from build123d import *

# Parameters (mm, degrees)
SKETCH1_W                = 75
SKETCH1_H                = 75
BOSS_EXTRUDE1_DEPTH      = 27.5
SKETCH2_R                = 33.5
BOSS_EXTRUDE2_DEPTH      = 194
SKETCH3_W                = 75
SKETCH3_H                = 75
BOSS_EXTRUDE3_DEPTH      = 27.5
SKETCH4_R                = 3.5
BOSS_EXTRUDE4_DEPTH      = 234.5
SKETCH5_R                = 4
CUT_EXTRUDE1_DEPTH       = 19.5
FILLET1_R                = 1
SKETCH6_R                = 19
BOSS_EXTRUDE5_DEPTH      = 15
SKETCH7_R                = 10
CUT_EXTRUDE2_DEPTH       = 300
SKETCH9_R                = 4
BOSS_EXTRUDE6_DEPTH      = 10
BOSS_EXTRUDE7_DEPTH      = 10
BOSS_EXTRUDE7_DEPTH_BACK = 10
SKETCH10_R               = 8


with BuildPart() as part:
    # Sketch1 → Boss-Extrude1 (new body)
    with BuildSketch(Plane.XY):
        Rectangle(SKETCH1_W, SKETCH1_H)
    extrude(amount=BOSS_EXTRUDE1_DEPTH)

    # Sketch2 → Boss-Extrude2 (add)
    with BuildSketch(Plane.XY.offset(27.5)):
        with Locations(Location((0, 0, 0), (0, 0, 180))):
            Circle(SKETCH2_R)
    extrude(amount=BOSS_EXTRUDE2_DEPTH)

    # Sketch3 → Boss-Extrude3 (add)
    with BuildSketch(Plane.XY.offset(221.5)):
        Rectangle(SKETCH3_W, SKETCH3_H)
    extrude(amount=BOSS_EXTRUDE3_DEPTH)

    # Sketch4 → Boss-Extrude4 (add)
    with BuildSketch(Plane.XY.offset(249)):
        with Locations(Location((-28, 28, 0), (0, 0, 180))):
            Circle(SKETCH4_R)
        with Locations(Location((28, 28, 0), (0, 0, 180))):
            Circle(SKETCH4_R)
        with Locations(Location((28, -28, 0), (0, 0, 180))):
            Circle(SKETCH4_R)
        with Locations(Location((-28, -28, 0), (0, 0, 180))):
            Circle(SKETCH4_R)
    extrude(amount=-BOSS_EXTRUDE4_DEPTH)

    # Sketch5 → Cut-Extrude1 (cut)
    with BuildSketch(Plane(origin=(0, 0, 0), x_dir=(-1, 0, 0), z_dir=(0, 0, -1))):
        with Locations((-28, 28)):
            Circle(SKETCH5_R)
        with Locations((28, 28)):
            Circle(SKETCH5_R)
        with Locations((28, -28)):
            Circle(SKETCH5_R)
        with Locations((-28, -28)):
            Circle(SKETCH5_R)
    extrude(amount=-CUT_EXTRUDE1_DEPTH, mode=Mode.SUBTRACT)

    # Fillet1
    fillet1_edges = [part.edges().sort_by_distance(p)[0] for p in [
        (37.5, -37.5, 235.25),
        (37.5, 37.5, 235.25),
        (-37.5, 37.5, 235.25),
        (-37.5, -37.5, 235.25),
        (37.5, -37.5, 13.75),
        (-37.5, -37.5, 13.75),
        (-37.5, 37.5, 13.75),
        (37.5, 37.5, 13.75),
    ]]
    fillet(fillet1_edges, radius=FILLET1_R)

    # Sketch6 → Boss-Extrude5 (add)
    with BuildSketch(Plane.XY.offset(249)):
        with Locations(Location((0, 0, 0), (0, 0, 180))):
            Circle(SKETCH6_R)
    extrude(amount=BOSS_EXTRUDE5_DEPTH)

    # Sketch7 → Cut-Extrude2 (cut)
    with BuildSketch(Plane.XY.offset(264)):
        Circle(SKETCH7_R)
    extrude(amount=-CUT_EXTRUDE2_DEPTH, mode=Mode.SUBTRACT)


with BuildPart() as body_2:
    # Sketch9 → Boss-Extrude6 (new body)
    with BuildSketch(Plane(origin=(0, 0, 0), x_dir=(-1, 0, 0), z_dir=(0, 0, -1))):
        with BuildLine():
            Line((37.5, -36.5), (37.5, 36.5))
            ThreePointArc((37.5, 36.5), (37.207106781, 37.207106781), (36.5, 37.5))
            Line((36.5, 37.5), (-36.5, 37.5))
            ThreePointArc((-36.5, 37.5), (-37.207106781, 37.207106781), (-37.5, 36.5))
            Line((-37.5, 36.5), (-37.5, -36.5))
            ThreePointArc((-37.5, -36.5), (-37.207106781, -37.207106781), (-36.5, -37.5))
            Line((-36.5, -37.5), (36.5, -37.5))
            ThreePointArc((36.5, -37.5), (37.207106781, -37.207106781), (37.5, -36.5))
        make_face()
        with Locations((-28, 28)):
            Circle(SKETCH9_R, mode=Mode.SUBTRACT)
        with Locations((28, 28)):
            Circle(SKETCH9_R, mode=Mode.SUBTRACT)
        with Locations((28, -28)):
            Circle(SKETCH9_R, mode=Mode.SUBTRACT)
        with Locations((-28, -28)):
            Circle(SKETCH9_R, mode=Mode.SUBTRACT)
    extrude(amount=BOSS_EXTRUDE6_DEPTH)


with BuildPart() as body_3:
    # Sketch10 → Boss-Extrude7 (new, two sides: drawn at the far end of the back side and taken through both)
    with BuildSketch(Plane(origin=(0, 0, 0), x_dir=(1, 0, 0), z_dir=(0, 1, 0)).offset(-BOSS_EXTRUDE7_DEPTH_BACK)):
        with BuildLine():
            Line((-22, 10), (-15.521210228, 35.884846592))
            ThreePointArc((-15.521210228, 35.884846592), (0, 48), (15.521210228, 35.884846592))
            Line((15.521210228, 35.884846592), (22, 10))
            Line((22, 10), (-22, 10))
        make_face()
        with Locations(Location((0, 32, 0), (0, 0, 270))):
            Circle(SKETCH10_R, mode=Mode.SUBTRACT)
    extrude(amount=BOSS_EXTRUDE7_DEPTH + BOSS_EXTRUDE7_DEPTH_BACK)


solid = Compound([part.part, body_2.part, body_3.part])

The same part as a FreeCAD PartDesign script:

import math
import FreeCAD as App
import Part
import Sketcher

V = App.Vector


def edges_at(feature, points):
    """Names of the edges that pass closest to the given points."""
    edges = feature.Shape.Edges
    near = lambda p: min(range(len(edges)), key=lambda i: edges[i].distToShape(Part.Vertex(*p))[0])
    return sorted({f"Edge{near(p) + 1}" for p in points})


def add_polygon(sketch, points):
    """Adds a closed chain of lines whose ends are joined by coincident constraints."""
    first, n = sketch.GeometryCount, len(points)
    for a, b in zip(points, points[1:] + points[:1]):
        sketch.addGeometry(Part.LineSegment(App.Vector(*a, 0), App.Vector(*b, 0)), False)
    for i in range(n):
        sketch.addConstraint(Sketcher.Constraint("Coincident", first + i, 2, first + (i + 1) % n, 1))

doc = App.newDocument("Part")
body = doc.addObject("PartDesign::Body", "Body")

sketch1 = body.newObject("Sketcher::SketchObject", "Sketch")
sketch1.AttachmentSupport = (doc.getObject("XY_Plane"), [""])
sketch1.MapMode = "FlatFace"
add_polygon(sketch1, [(-37.5, 37.5), (-37.5, -37.5), (37.5, -37.5), (37.5, 37.5)])
sketch1.addConstraint(Sketcher.Constraint("Vertical", 0))
sketch1.addConstraint(Sketcher.Constraint("Horizontal", 1))
sketch1.addConstraint(Sketcher.Constraint("Vertical", 2))
sketch1.addConstraint(Sketcher.Constraint("Horizontal", 3))
sketch1.addConstraint(Sketcher.Constraint("Symmetric", 0, 2, 2, 2, -1, 1))
sketch1.addConstraint(Sketcher.Constraint("Equal", 3, 0))
sketch1.addConstraint(Sketcher.Constraint("DistanceX", 1, 1, 1, 2, 75.0))
pad1 = body.newObject("PartDesign::Pad", "Pad")
pad1.Profile = sketch1
pad1.Length = 27.5

sketch2 = body.newObject("Sketcher::SketchObject", "Sketch001")
sketch2.AttachmentSupport = (doc.getObject("XY_Plane"), [""])
sketch2.MapMode = "FlatFace"
sketch2.AttachmentOffset = App.Placement(V(0, 0, 27.5), App.Rotation())
sketch2.addGeometry(Part.Circle(V(0, 0, 0), V(0, 0, 1), 33.5), False)
sketch2.addConstraint(Sketcher.Constraint("Coincident", 0, 3, -1, 1))
sketch2.addConstraint(Sketcher.Constraint("Diameter", 0, 67.0))
pad2 = body.newObject("PartDesign::Pad", "Pad001")
pad2.Profile = sketch2
pad2.Length = 194

sketch3 = body.newObject("Sketcher::SketchObject", "Sketch002")
sketch3.AttachmentSupport = (doc.getObject("XY_Plane"), [""])
sketch3.MapMode = "FlatFace"
sketch3.AttachmentOffset = App.Placement(V(0, 0, 221.5), App.Rotation())
add_polygon(sketch3, [(-37.5, 37.5), (-37.5, -37.5), (37.5, -37.5), (37.5, 37.5)])
sketch3.addConstraint(Sketcher.Constraint("Vertical", 0))
sketch3.addConstraint(Sketcher.Constraint("Horizontal", 1))
sketch3.addConstraint(Sketcher.Constraint("Vertical", 2))
sketch3.addConstraint(Sketcher.Constraint("Horizontal", 3))
sketch3.addConstraint(Sketcher.Constraint("Symmetric", 0, 2, 2, 2, -1, 1))
sketch3.addConstraint(Sketcher.Constraint("Equal", 3, 0))
sketch3.addConstraint(Sketcher.Constraint("DistanceX", 1, 1, 1, 2, 75.0))
pad3 = body.newObject("PartDesign::Pad", "Pad002")
pad3.Profile = sketch3
pad3.Length = 27.5

sketch4 = body.newObject("Sketcher::SketchObject", "Sketch003")
sketch4.AttachmentSupport = (doc.getObject("XY_Plane"), [""])
sketch4.MapMode = "FlatFace"
sketch4.AttachmentOffset = App.Placement(V(0, 0, 249), App.Rotation())
sketch4.addGeometry(Part.Circle(V(-28, 28, 0), V(0, 0, 1), 3.5), False)
sketch4.addGeometry(Part.Circle(V(28, 28, 0), V(0, 0, 1), 3.5), False)
sketch4.addGeometry(Part.Circle(V(28, -28, 0), V(0, 0, 1), 3.5), False)
sketch4.addGeometry(Part.Circle(V(-28, -28, 0), V(0, 0, 1), 3.5), False)
sketch4.addConstraint(Sketcher.Constraint("Equal", 0, 1))
sketch4.addConstraint(Sketcher.Constraint("Equal", 1, 2))
sketch4.addConstraint(Sketcher.Constraint("Equal", 2, 3))
sketch4.addConstraint(Sketcher.Constraint("Symmetric", 0, 3, 2, 3, -1, 1))
sketch4.addConstraint(Sketcher.Constraint("Symmetric", 1, 3, 3, 3, -1, 1))
sketch4.addConstraint(Sketcher.Constraint("Symmetric", 0, 3, 1, 3, -2))
sketch4.addConstraint(Sketcher.Constraint("Diameter", 0, 7.0))
sketch4.addConstraint(Sketcher.Constraint("DistanceX", 0, 3, -1, 1, 28.0))
sketch4.addConstraint(Sketcher.Constraint("DistanceY", -1, 1, 0, 3, 28.0))
pad4 = body.newObject("PartDesign::Pad", "Pad003")
pad4.Profile = sketch4
pad4.Length = 234.5
pad4.Reversed = True

sketch5 = body.newObject("Sketcher::SketchObject", "Sketch004")
sketch5.AttachmentSupport = (doc.getObject("XY_Plane"), [""])
sketch5.MapMode = "FlatFace"
sketch5.addGeometry(Part.Circle(V(28, 28, 0), V(0, 0, 1), 4), False)
sketch5.addGeometry(Part.Circle(V(-28, 28, 0), V(0, 0, 1), 4), False)
sketch5.addGeometry(Part.Circle(V(-28, -28, 0), V(0, 0, 1), 4), False)
sketch5.addGeometry(Part.Circle(V(28, -28, 0), V(0, 0, 1), 4), False)
sketch5.addConstraint(Sketcher.Constraint("Equal", 0, 1))
sketch5.addConstraint(Sketcher.Constraint("Equal", 1, 2))
sketch5.addConstraint(Sketcher.Constraint("Equal", 2, 3))
sketch5.addConstraint(Sketcher.Constraint("Symmetric", 0, 3, 2, 3, -1, 1))
sketch5.addConstraint(Sketcher.Constraint("Symmetric", 1, 3, 3, 3, -1, 1))
sketch5.addConstraint(Sketcher.Constraint("Symmetric", 0, 3, 1, 3, -2))
sketch5.addConstraint(Sketcher.Constraint("Diameter", 0, 8.0))
sketch5.addConstraint(Sketcher.Constraint("DistanceX", -1, 1, 0, 3, 28.0))
sketch5.addConstraint(Sketcher.Constraint("DistanceY", -1, 1, 0, 3, 28.0))
pocket1 = body.newObject("PartDesign::Pocket", "Pocket")
pocket1.Profile = sketch5
pocket1.Length = 19.5
pocket1.Reversed = True
doc.recompute()

fillet = body.newObject("PartDesign::Fillet", "Fillet")
fillet.Base = (pocket1, edges_at(pocket1, [
    (37.5, -37.5, 235.25),
    (37.5, 37.5, 235.25),
    (-37.5, 37.5, 235.25),
    (-37.5, -37.5, 235.25),
    (37.5, -37.5, 13.75),
    (-37.5, -37.5, 13.75),
    (-37.5, 37.5, 13.75),
    (37.5, 37.5, 13.75),
]))
fillet.Radius = 1

sketch6 = body.newObject("Sketcher::SketchObject", "Sketch005")
sketch6.AttachmentSupport = (doc.getObject("XY_Plane"), [""])
sketch6.MapMode = "FlatFace"
sketch6.AttachmentOffset = App.Placement(V(0, 0, 249), App.Rotation())
sketch6.addGeometry(Part.Circle(V(0, 0, 0), V(0, 0, 1), 19), False)
sketch6.addConstraint(Sketcher.Constraint("Coincident", 0, 3, -1, 1))
sketch6.addConstraint(Sketcher.Constraint("Diameter", 0, 38.0))
pad5 = body.newObject("PartDesign::Pad", "Pad004")
pad5.Profile = sketch6
pad5.Length = 15

sketch7 = body.newObject("Sketcher::SketchObject", "Sketch006")
sketch7.AttachmentSupport = (doc.getObject("XY_Plane"), [""])
sketch7.MapMode = "FlatFace"
sketch7.AttachmentOffset = App.Placement(V(0, 0, 264), App.Rotation())
sketch7.addGeometry(Part.Circle(V(0, 0, 0), V(0, 0, 1), 10), False)
sketch7.addConstraint(Sketcher.Constraint("Coincident", 0, 3, -1, 1))
sketch7.addConstraint(Sketcher.Constraint("Diameter", 0, 20.0))
pocket2 = body.newObject("PartDesign::Pocket", "Pocket001")
pocket2.Profile = sketch7
pocket2.Length = 300
body2 = doc.addObject("PartDesign::Body", "Body001")

sketch8 = body2.newObject("Sketcher::SketchObject", "Sketch007")
sketch8.AttachmentSupport = (doc.getObject("XY_Plane001"), [""])
sketch8.MapMode = "FlatFace"
sketch8.addGeometry(Part.LineSegment(V(-37.5, -36.5, 0), V(-37.5, 36.5, 0)), False)
sketch8.addGeometry(Part.ArcOfCircle(Part.Circle(V(-36.5, 36.5, 0), V(0, 0, 1), 1), math.radians(90), math.radians(180)), False)
sketch8.addGeometry(Part.LineSegment(V(-36.5, 37.5, 0), V(36.5, 37.5, 0)), False)
sketch8.addGeometry(Part.ArcOfCircle(Part.Circle(V(36.5, 36.5, 0), V(0, 0, 1), 1), math.radians(0), math.radians(90)), False)
sketch8.addGeometry(Part.LineSegment(V(37.5, 36.5, 0), V(37.5, -36.5, 0)), False)
sketch8.addGeometry(Part.ArcOfCircle(Part.Circle(V(36.5, -36.5, 0), V(0, 0, 1), 1), math.radians(-90), math.radians(0)), False)
sketch8.addGeometry(Part.LineSegment(V(36.5, -37.5, 0), V(-36.5, -37.5, 0)), False)
sketch8.addGeometry(Part.ArcOfCircle(Part.Circle(V(-36.5, -36.5, 0), V(0, 0, 1), 1), math.radians(-180), math.radians(-90)), False)
sketch8.addGeometry(Part.Circle(V(28, -28, 0), V(0, 0, 1), 4), False)
sketch8.addGeometry(Part.Circle(V(-28, -28, 0), V(0, 0, 1), 4), False)
sketch8.addGeometry(Part.Circle(V(28, 28, 0), V(0, 0, 1), 4), False)
sketch8.addGeometry(Part.Circle(V(-28, 28, 0), V(0, 0, 1), 4), False)
sketch8.addConstraint(Sketcher.Constraint("Tangent", 0, 2, 1, 2))
sketch8.addConstraint(Sketcher.Constraint("Tangent", 1, 1, 2, 1))
sketch8.addConstraint(Sketcher.Constraint("Tangent", 2, 2, 3, 2))
sketch8.addConstraint(Sketcher.Constraint("Tangent", 3, 1, 4, 1))
sketch8.addConstraint(Sketcher.Constraint("Tangent", 4, 2, 5, 2))
sketch8.addConstraint(Sketcher.Constraint("Tangent", 5, 1, 6, 1))
sketch8.addConstraint(Sketcher.Constraint("Tangent", 6, 2, 7, 2))
sketch8.addConstraint(Sketcher.Constraint("Tangent", 7, 1, 0, 1))
sketch8.addConstraint(Sketcher.Constraint("Vertical", 0))
sketch8.addConstraint(Sketcher.Constraint("Horizontal", 2))
sketch8.addConstraint(Sketcher.Constraint("Vertical", 4))
sketch8.addConstraint(Sketcher.Constraint("Horizontal", 6))
sketch8.addConstraint(Sketcher.Constraint("Equal", 1, 3))
sketch8.addConstraint(Sketcher.Constraint("Equal", 3, 5))
sketch8.addConstraint(Sketcher.Constraint("Equal", 5, 7))
sketch8.addConstraint(Sketcher.Constraint("Equal", 8, 9))
sketch8.addConstraint(Sketcher.Constraint("Equal", 9, 10))
sketch8.addConstraint(Sketcher.Constraint("Equal", 10, 11))
sketch8.addConstraint(Sketcher.Constraint("Symmetric", 1, 3, 5, 3, -1, 1))
sketch8.addConstraint(Sketcher.Constraint("Symmetric", 9, 3, 10, 3, -1, 1))
sketch8.addConstraint(Sketcher.Constraint("Symmetric", 8, 3, 11, 3, -1, 1))
sketch8.addConstraint(Sketcher.Constraint("Symmetric", 8, 3, 9, 3, -2))
sketch8.addConstraint(Sketcher.Constraint("Equal", 6, 0))
sketch8.addConstraint(Sketcher.Constraint("Diameter", 8, 8.0))
sketch8.addConstraint(Sketcher.Constraint("Radius", 1, 1.0))
sketch8.addConstraint(Sketcher.Constraint("DistanceX", 2, 1, 2, 2, 73.0))
sketch8.addConstraint(Sketcher.Constraint("DistanceX", -1, 1, 8, 3, 28.0))
sketch8.addConstraint(Sketcher.Constraint("DistanceY", 8, 3, -1, 1, 28.0))
pad6 = body2.newObject("PartDesign::Pad", "Pad005")
pad6.Profile = sketch8
pad6.Length = 10
pad6.Reversed = True
body3 = doc.addObject("PartDesign::Body", "Body002")

sketch9 = body3.newObject("Sketcher::SketchObject", "Sketch008")
sketch9.AttachmentSupport = (doc.getObject("XZ_Plane002"), [""])
sketch9.MapMode = "FlatFace"
sketch9.addGeometry(Part.LineSegment(V(-15.52121, -35.884847, 0), V(-22, -10, 0)), False)
sketch9.addGeometry(Part.LineSegment(V(-22, -10, 0), V(22, -10, 0)), False)
sketch9.addGeometry(Part.LineSegment(V(22, -10, 0), V(15.52121, -35.884847, 0)), False)
sketch9.addGeometry(Part.ArcOfCircle(Part.Circle(V(0, -32, 0), V(0, 0, 1), 16), math.radians(-165.94797), math.radians(-14.05203)), False)
sketch9.addGeometry(Part.Circle(V(0, -32, 0), V(0, 0, 1), 8), False)
sketch9.addConstraint(Sketcher.Constraint("Coincident", 0, 2, 1, 1))
sketch9.addConstraint(Sketcher.Constraint("Coincident", 1, 2, 2, 1))
sketch9.addConstraint(Sketcher.Constraint("Tangent", 2, 2, 3, 2))
sketch9.addConstraint(Sketcher.Constraint("Tangent", 3, 1, 0, 1))
sketch9.addConstraint(Sketcher.Constraint("Horizontal", 1))
sketch9.addConstraint(Sketcher.Constraint("Coincident", 4, 3, 3, 3))
sketch9.addConstraint(Sketcher.Constraint("Symmetric", 2, 2, 3, 1, -2))
sketch9.addConstraint(Sketcher.Constraint("Diameter", 4, 16.0))
sketch9.addConstraint(Sketcher.Constraint("Radius", 3, 16.0))
sketch9.addConstraint(Sketcher.Constraint("DistanceX", 1, 1, 1, 2, 44.0))
sketch9.addConstraint(Sketcher.Constraint("DistanceY", 3, 3, -1, 1, 32.0))
sketch9.addConstraint(Sketcher.Constraint("DistanceY", 0, 2, -1, 1, 10.0))
pad7 = body3.newObject("PartDesign::Pad", "Pad006")
pad7.Profile = sketch9
pad7.Type = "TwoLengths"
pad7.Length = 10
pad7.Length2 = 10
pad7.Reversed = True

doc.recompute()
